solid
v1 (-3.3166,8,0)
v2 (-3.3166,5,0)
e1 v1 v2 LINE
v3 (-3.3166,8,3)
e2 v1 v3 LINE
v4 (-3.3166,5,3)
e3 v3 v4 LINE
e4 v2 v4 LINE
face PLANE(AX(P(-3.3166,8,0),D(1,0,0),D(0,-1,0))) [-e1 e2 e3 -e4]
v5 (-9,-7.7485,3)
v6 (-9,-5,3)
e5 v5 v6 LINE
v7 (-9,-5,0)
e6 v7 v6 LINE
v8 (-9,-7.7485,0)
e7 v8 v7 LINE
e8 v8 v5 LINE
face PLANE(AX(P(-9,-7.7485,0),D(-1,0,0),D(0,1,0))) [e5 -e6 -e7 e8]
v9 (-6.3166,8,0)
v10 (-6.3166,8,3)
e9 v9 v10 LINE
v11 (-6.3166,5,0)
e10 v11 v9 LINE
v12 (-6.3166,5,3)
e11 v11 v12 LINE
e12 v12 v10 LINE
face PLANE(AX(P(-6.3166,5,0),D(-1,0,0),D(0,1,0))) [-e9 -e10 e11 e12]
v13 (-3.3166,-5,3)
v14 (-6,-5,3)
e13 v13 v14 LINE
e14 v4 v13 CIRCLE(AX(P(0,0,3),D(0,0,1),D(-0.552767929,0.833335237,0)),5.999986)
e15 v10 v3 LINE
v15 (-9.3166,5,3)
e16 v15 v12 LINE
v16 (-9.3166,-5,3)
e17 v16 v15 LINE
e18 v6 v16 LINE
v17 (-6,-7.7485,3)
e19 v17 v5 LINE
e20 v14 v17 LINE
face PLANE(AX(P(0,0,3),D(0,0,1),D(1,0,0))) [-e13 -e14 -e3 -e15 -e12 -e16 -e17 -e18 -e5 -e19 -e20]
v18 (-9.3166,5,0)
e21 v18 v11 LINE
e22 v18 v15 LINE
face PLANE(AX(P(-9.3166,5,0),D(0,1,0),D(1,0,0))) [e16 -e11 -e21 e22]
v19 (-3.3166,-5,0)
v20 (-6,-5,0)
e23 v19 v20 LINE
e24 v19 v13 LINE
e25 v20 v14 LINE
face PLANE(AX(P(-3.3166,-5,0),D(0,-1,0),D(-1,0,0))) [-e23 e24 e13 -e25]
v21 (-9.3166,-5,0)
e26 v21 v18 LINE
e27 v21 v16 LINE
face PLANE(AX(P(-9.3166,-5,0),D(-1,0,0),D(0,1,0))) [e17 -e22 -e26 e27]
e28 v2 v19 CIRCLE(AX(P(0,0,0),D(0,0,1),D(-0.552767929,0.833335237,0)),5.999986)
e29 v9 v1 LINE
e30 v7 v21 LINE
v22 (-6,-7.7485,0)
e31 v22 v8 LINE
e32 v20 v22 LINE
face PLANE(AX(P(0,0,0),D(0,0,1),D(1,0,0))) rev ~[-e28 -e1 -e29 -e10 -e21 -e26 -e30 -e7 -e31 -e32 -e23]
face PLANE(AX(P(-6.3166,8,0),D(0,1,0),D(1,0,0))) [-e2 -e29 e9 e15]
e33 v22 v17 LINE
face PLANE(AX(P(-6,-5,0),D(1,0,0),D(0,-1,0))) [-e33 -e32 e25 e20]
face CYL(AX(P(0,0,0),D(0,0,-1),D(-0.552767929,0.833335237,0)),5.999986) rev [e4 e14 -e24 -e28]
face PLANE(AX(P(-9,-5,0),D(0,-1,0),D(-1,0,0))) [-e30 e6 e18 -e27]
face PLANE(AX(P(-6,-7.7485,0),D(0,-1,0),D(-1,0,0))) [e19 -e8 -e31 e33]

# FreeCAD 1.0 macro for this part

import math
import FreeCAD as App
import Part
import Sketcher

V = App.Vector
Q = App.Units.Quantity

doc = App.newDocument("Part")
body = doc.addObject("PartDesign::Body", "Body")

sketch1 = body.newObject("Sketcher::SketchObject", "Sketch")
sketch1.AttachmentSupport = (doc.getObject("XY_Plane"), [""])
sketch1.MapMode = "FlatFace"
sketch1.addGeometry(Part.ArcOfCircle(Part.Circle(V(0, 0, 0), V(0, 0, 1), 5.999986), math.radians(123.557112), math.radians(236.442888)), False)
sketch1.addGeometry(Part.LineSegment(V(-3.3166, 5, 0), V(-3.3166, 8, 0)), False)
sketch1.addGeometry(Part.LineSegment(V(-3.3166, 8, 0), V(-6.3166, 8, 0)), False)
sketch1.addGeometry(Part.LineSegment(V(-6.3166, 8, 0), V(-6.3166, 5, 0)), False)
sketch1.addGeometry(Part.LineSegment(V(-6.3166, 5, 0), V(-9.3166, 5, 0)), False)
sketch1.addGeometry(Part.LineSegment(V(-9.3166, 5, 0), V(-9.3166, -5, 0)), False)
sketch1.addGeometry(Part.LineSegment(V(-9.3166, -5, 0), V(-9, -5, 0)), False)
sketch1.addGeometry(Part.LineSegment(V(-9, -5, 0), V(-9, -7.7485, 0)), False)
sketch1.addGeometry(Part.LineSegment(V(-9, -7.7485, 0), V(-6, -7.7485, 0)), False)
sketch1.addGeometry(Part.LineSegment(V(-6, -7.7485, 0), V(-6, -5, 0)), False)
sketch1.addGeometry(Part.LineSegment(V(-6, -5, 0), V(-3.3166, -5, 0)), False)
sketch1.addConstraint(Sketcher.Constraint("Coincident", 0, 1, 1, 1))
sketch1.addConstraint(Sketcher.Constraint("Coincident", 1, 2, 2, 1))
sketch1.addConstraint(Sketcher.Constraint("Coincident", 2, 2, 3, 1))
sketch1.addConstraint(Sketcher.Constraint("Coincident", 3, 2, 4, 1))
sketch1.addConstraint(Sketcher.Constraint("Coincident", 4, 2, 5, 1))
sketch1.addConstraint(Sketcher.Constraint("Coincident", 5, 2, 6, 1))
sketch1.addConstraint(Sketcher.Constraint("Coincident", 6, 2, 7, 1))
sketch1.addConstraint(Sketcher.Constraint("Coincident", 7, 2, 8, 1))
sketch1.addConstraint(Sketcher.Constraint("Coincident", 8, 2, 9, 1))
sketch1.addConstraint(Sketcher.Constraint("Coincident", 9, 2, 10, 1))
sketch1.addConstraint(Sketcher.Constraint("Coincident", 10, 2, 0, 2))
sketch1.addConstraint(Sketcher.Constraint("Vertical", 1))
sketch1.addConstraint(Sketcher.Constraint("Horizontal", 2))
sketch1.addConstraint(Sketcher.Constraint("Vertical", 3))
sketch1.addConstraint(Sketcher.Constraint("Horizontal", 4))
sketch1.addConstraint(Sketcher.Constraint("Vertical", 5))
sketch1.addConstraint(Sketcher.Constraint("Horizontal", 6))
sketch1.addConstraint(Sketcher.Constraint("Vertical", 7))
sketch1.addConstraint(Sketcher.Constraint("Horizontal", 8))
sketch1.addConstraint(Sketcher.Constraint("Vertical", 9))
sketch1.addConstraint(Sketcher.Constraint("Horizontal", 10))
sketch1.addConstraint(Sketcher.Constraint("Coincident", 0, 3, -1, 1))
sketch1.addConstraint(Sketcher.Constraint("Horizontal", 0, 1, 3, 2))
sketch1.addConstraint(Sketcher.Constraint("Horizontal", 6, 2, 9, 2))
sketch1.addConstraint(Sketcher.Constraint("Vertical", 1, 2, 10, 2))
sketch1.addConstraint(Sketcher.Constraint("Equal", 2, 4))
sketch1.addConstraint(Sketcher.Constraint("Equal", 4, 8))
sketch1.addConstraint(Sketcher.Constraint("Equal", 8, 1))
sketch1.addConstraint(Sketcher.Constraint("Radius", 0, Q("6 mm")))
sketch1.addConstraint(Sketcher.Constraint("DistanceX", 2, 2, 2, 1, Q("3 mm")))
sketch1.addConstraint(Sketcher.Constraint("DistanceY", 5, 2, 5, 1, Q("10 mm")))
sketch1.addConstraint(Sketcher.Constraint("DistanceX", 8, 2, -1, 1, Q("6 mm")))
sketch1.addConstraint(Sketcher.Constraint("DistanceY", 7, 2, 7, 1, Q("2.7485 mm")))
pad1 = body.newObject("PartDesign::Pad", "Pad")
pad1.Profile = sketch1
pad1.Length = 3

doc.recompute()
